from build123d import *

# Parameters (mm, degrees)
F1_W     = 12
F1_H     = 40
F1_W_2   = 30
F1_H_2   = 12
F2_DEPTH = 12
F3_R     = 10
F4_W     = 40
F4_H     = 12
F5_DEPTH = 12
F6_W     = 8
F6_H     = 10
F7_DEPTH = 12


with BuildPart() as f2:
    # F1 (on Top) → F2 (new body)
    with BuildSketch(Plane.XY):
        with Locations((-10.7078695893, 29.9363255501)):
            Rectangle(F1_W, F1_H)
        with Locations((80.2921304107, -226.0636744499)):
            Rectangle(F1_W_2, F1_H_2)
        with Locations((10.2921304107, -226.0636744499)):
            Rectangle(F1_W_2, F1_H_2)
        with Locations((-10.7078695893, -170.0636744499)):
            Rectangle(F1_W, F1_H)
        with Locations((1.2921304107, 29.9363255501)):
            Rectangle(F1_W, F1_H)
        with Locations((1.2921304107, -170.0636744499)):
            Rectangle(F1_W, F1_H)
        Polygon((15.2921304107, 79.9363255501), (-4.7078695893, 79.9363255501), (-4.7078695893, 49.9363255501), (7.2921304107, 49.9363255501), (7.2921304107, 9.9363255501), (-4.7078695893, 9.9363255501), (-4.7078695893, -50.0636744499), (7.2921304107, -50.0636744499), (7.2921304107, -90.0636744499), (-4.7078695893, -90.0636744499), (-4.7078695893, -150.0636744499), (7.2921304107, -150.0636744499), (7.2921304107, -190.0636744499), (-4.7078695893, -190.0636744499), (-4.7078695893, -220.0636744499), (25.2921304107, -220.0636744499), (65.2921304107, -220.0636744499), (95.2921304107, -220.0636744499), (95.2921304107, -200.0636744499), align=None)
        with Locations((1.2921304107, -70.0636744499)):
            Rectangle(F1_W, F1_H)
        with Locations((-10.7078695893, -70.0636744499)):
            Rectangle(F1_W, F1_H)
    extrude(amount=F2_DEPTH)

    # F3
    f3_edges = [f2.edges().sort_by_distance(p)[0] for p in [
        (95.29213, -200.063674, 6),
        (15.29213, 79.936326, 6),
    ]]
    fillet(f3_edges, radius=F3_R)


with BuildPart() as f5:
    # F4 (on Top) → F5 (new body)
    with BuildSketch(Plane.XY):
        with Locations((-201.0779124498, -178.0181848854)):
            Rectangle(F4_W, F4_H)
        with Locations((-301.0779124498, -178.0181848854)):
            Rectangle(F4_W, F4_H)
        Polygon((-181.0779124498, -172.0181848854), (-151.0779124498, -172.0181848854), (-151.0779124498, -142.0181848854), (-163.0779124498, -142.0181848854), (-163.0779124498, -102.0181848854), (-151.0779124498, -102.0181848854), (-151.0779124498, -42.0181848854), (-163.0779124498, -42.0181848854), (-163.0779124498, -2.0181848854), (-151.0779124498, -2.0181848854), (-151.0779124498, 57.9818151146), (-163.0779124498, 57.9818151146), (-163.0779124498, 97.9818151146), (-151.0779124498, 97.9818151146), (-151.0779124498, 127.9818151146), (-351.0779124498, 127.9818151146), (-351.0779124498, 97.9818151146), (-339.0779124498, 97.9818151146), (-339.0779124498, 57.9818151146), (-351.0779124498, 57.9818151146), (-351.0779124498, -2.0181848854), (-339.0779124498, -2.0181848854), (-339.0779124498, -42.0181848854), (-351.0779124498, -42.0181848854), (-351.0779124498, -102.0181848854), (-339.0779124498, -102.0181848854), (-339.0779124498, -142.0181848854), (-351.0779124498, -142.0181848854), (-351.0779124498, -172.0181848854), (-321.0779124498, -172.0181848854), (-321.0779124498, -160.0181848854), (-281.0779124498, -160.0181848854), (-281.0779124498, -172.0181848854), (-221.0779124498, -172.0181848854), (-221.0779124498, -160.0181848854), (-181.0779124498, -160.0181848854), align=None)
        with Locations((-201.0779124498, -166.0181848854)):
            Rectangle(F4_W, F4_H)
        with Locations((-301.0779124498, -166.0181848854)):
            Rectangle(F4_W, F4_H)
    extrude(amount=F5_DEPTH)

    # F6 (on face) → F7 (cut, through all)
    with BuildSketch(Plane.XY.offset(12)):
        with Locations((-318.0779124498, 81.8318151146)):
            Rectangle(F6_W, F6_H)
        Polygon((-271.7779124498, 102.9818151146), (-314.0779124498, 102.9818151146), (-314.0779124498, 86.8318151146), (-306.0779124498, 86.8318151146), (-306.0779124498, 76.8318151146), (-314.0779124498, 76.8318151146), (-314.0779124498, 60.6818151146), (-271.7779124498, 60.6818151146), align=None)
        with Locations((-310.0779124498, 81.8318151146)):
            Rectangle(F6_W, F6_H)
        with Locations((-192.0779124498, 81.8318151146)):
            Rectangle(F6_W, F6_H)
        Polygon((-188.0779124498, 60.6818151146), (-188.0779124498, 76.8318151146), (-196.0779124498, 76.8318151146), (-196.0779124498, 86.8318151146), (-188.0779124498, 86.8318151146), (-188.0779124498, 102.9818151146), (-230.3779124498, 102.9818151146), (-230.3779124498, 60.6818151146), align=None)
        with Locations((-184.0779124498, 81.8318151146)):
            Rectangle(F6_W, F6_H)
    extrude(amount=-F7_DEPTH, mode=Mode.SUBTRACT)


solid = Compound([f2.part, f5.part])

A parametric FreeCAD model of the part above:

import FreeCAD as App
import Part
import Sketcher
from FreeCAD import Vector
Q = App.Units.Quantity


def edges_at(feature, points):
    """Names of the edges that pass closest to the given points."""
    edges = feature.Shape.Edges
    near = lambda p: min(range(len(edges)), key=lambda i: edges[i].distToShape(Part.Vertex(*p))[0])
    return sorted({f"Edge{near(p) + 1}" for p in points})


def add_polygon(sketch, points):
    """Adds a closed chain of lines whose ends are joined by coincident constraints."""
    first, n = sketch.GeometryCount, len(points)
    for a, b in zip(points, points[1:] + points[:1]):
        sketch.addGeometry(Part.LineSegment(App.Vector(*a, 0), App.Vector(*b, 0)), False)
    for i in range(n):
        sketch.addConstraint(Sketcher.Constraint("Coincident", first + i, 2, first + (i + 1) % n, 1))

doc = App.newDocument("Part")
params = doc.addObject("Spreadsheet::Sheet", "Params")
for row, (alias, value) in enumerate([
    ("sketch1_width", "12 mm"),
    ("sketch1_width2", "30 mm"),
    ("sketch1_width3", "40 mm"),
    ("sketch1_width4", "20 mm"),
    ("sketch1_height", "60 mm"),
    ("pad1_length", "12 mm"),
    ("fillet_radius", "10 mm"),
    ("sketch2_width", "40 mm"),
    ("sketch2_width2", "30 mm"),
    ("sketch2_width3", "12 mm"),
    ("sketch2_width4", "200 mm"),
    ("pad2_length", "12 mm"),
    ("sketch3_width", "8 mm"),
    ("sketch3_height", "10 mm"),
    ("sketch3_width2", "42.3 mm"),
], start=1):
    params.set(f"A{row}", alias)
    params.set(f"B{row}", "=" + value)
    params.setAlias(f"B{row}", alias)

body = doc.addObject("PartDesign::Body", "Body")

# Sketch on XY plane
sketch1 = body.newObject("Sketcher::SketchObject", "Sketch")
sketch1.AttachmentSupport = (doc.getObject("XY_Plane"), [""])
sketch1.MapMode = "FlatFace"
add_polygon(sketch1, [(-17, 50), (-17, 10), (-5, 10), (-5, -50), (-17, -50), (-17, -90), (-5, -90), (-5, -150), (-17, -150), (-17, -190), (-5, -190), (-5, -232), (25, -232), (25, -220), (65, -220), (65, -232), (95, -232), (95, -200), (15, 80), (-5, 80), (-5, 50)])  # lines 0-20
sketch1.addConstraint([
    Sketcher.Constraint("Vertical", 0),
    Sketcher.Constraint("Horizontal", 1),
    Sketcher.Constraint("Vertical", 2),
    Sketcher.Constraint("Horizontal", 3),
    Sketcher.Constraint("Vertical", 4),
    Sketcher.Constraint("Horizontal", 5),
    Sketcher.Constraint("Vertical", 6),
    Sketcher.Constraint("Horizontal", 7),
    Sketcher.Constraint("Vertical", 8),
    Sketcher.Constraint("Horizontal", 9),
    Sketcher.Constraint("Vertical", 10),
    Sketcher.Constraint("Horizontal", 11),
    Sketcher.Constraint("Vertical", 12),
    Sketcher.Constraint("Horizontal", 13),
    Sketcher.Constraint("Vertical", 14),
    Sketcher.Constraint("Horizontal", 15),
    Sketcher.Constraint("Vertical", 16),
    Sketcher.Constraint("Horizontal", 18),
    Sketcher.Constraint("Vertical", 19),
    Sketcher.Constraint("Horizontal", 20),
    Sketcher.Constraint("Horizontal", 11, 2, 14, 2),
    Sketcher.Constraint("Vertical", 0, 2, 3, 2),
    Sketcher.Constraint("Vertical", 2, 2, 5, 2),
    Sketcher.Constraint("Vertical", 4, 2, 7, 2),
    Sketcher.Constraint("Vertical", 6, 2, 9, 2),
    Sketcher.Constraint("Vertical", 10, 2, 18, 2),
    Sketcher.Constraint("Equal", 11, 15),
    Sketcher.Constraint("Equal", 13, 0),
    Sketcher.Constraint("Equal", 0, 4),
    Sketcher.Constraint("Equal", 2, 6),
    Sketcher.Constraint("Equal", 4, 8),
    Sketcher.Constraint("Equal", 20, 12),
    Sketcher.Constraint("Equal", 15, 19),
    Sketcher.Constraint("DistanceX", 1, 1, 1, 2, Q("12 mm")),
    Sketcher.Constraint("DistanceX", 11, 1, 11, 2, Q("30 mm")),
    Sketcher.Constraint("DistanceX", 13, 1, 13, 2, Q("40 mm")),
    Sketcher.Constraint("DistanceX", 18, 2, 18, 1, Q("20 mm")),
    Sketcher.Constraint("DistanceY", 2, 2, 2, 1, Q("60 mm")),
    Sketcher.Constraint("DistanceY", 10, 2, 10, 1, Q("42 mm")),
    Sketcher.Constraint("DistanceY", 16, 1, 16, 2, Q("32 mm")),
    Sketcher.Constraint("DistanceX", 0, 2, -1, 1, Q("16.70787 mm")),
    Sketcher.Constraint("DistanceY", -1, 1, 0, 2, Q("9.936326 mm")),
])
sketch1.setExpression("Constraints[54]", "Params.sketch1_width")
sketch1.setExpression("Constraints[55]", "Params.sketch1_width2")
sketch1.setExpression("Constraints[56]", "Params.sketch1_width3")
sketch1.setExpression("Constraints[57]", "Params.sketch1_width4")
sketch1.setExpression("Constraints[58]", "Params.sketch1_height")
pad1 = body.newObject("PartDesign::Pad", "Pad")
pad1.Profile = sketch1
pad1.setExpression("Length", "Params.pad1_length")
doc.recompute()

fillet = body.newObject("PartDesign::Fillet", "Fillet")
fillet.Base = (pad1, edges_at(pad1, [(95.292, -200.064, 6), (15.292, 79.936, 6)]))
fillet.setExpression("Radius", "Params.fillet_radius")
body2 = doc.addObject("PartDesign::Body", "Body001")

# Sketch on XY plane
sketch2 = body2.newObject("Sketcher::SketchObject", "Sketch001")
sketch2.AttachmentSupport = (doc.getObject("XY_Plane001"), [""])
sketch2.MapMode = "FlatFace"
add_polygon(sketch2, [(-221, -172), (-221, -184), (-181, -184), (-181, -172), (-151, -172), (-151, -142), (-163, -142), (-163, -102), (-151, -102), (-151, -42), (-163, -42), (-163, -2), (-151, -2), (-151, 58), (-163, 58), (-163, 98), (-151, 98), (-151, 128), (-351, 128), (-351, 98), (-339, 98), (-339, 58), (-351, 58), (-351, -2), (-339, -2), (-339, -42), (-351, -42), (-351, -102), (-339, -102), (-339, -142), (-351, -142), (-351, -172), (-321, -172), (-321, -184), (-281, -184), (-281, -172)])  # lines 0-35
sketch2.addConstraint([
    Sketcher.Constraint("Vertical", 0),
    Sketcher.Constraint("Horizontal", 1),
    Sketcher.Constraint("Vertical", 2),
    Sketcher.Constraint("Horizontal", 3),
    Sketcher.Constraint("Vertical", 4),
    Sketcher.Constraint("Horizontal", 5),
    Sketcher.Constraint("Vertical", 6),
    Sketcher.Constraint("Horizontal", 7),
    Sketcher.Constraint("Vertical", 8),
    Sketcher.Constraint("Horizontal", 9),
    Sketcher.Constraint("Vertical", 10),
    Sketcher.Constraint("Horizontal", 11),
    Sketcher.Constraint("Vertical", 12),
    Sketcher.Constraint("Horizontal", 13),
    Sketcher.Constraint("Vertical", 14),
    Sketcher.Constraint("Horizontal", 15),
    Sketcher.Constraint("Vertical", 16),
    Sketcher.Constraint("Horizontal", 17),
    Sketcher.Constraint("Vertical", 18),
    Sketcher.Constraint("Horizontal", 19),
    Sketcher.Constraint("Vertical", 20),
    Sketcher.Constraint("Horizontal", 21),
    Sketcher.Constraint("Vertical", 22),
    Sketcher.Constraint("Horizontal", 23),
    Sketcher.Constraint("Vertical", 24),
    Sketcher.Constraint("Horizontal", 25),
    Sketcher.Constraint("Vertical", 26),
    Sketcher.Constraint("Horizontal", 27),
    Sketcher.Constraint("Vertical", 28),
    Sketcher.Constraint("Horizontal", 29),
    Sketcher.Constraint("Vertical", 30),
    Sketcher.Constraint("Horizontal", 31),
    Sketcher.Constraint("Vertical", 32),
    Sketcher.Constraint("Horizontal", 33),
    Sketcher.Constraint("Vertical", 34),
    Sketcher.Constraint("Horizontal", 35),
    Sketcher.Constraint("Horizontal", 15, 2, 18, 2),
    Sketcher.Constraint("Horizontal", 13, 2, 20, 2),
    Sketcher.Constraint("Horizontal", 11, 2, 22, 2),
    Sketcher.Constraint("Horizontal", 9, 2, 24, 2),
    Sketcher.Constraint("Horizontal", 7, 2, 26, 2),
    Sketcher.Constraint("Horizontal", 5, 2, 28, 2),
    Sketcher.Constraint("Horizontal", 3, 2, 30, 2),
    Sketcher.Constraint("Horizontal", 1, 2, 32, 2),
    Sketcher.Constraint("Horizontal", 31, 2, 34, 2),
    Sketcher.Constraint("Vertical", 4, 2, 7, 2),
    Sketcher.Constraint("Vertical", 6, 2, 9, 2),
    Sketcher.Constraint("Vertical", 8, 2, 11, 2),
    Sketcher.Constraint("Vertical", 10, 2, 13, 2),
    Sketcher.Constraint("Vertical", 12, 2, 15, 2),
    Sketcher.Constraint("Vertical", 18, 2, 21, 2),
    Sketcher.Constraint("Vertical", 20, 2, 23, 2),
    Sketcher.Constraint("Vertical", 22, 2, 25, 2),
    Sketcher.Constraint("Vertical", 24, 2, 27, 2),
    Sketcher.Constraint("Vertical", 26, 2, 29, 2),
    Sketcher.Constraint("Equal", 15, 19),
    Sketcher.Constraint("Equal", 3, 31),
    Sketcher.Constraint("Equal", 1, 33),
    Sketcher.Constraint("Equal", 29, 0),
    Sketcher.Constraint("Equal", 31, 4),
    Sketcher.Constraint("Equal", 33, 6),
    Sketcher.Constraint("Equal", 35, 8),
    Sketcher.Constraint("Equal", 6, 10),
    Sketcher.Constraint("Equal", 8, 12),
    Sketcher.Constraint("Equal", 10, 14),
    Sketcher.Constraint("Equal", 4, 16),
    Sketcher.Constraint("DistanceX", 1, 1, 1, 2, Q("40 mm")),
    Sketcher.Constraint("DistanceX", 3, 1, 3, 2, Q("30 mm")),
    Sketcher.Constraint("DistanceX", 5, 2, 5, 1, Q("12 mm")),
    Sketcher.Constraint("DistanceX", 17, 2, 17, 1, Q("200 mm")),
    Sketcher.Constraint("DistanceX", 0, 2, -1, 1, Q("221.077912 mm")),
    Sketcher.Constraint("DistanceY", 0, 2, -1, 1, Q("184.018185 mm")),
])
sketch2.setExpression("Constraints[102]", "Params.sketch2_width")
sketch2.setExpression("Constraints[103]", "Params.sketch2_width2")
sketch2.setExpression("Constraints[104]", "Params.sketch2_width3")
sketch2.setExpression("Constraints[105]", "Params.sketch2_width4")
pad2 = body2.newObject("PartDesign::Pad", "Pad001")
pad2.Profile = sketch2
pad2.setExpression("Length", "Params.pad2_length")

# Sketch on XY plane
sketch3 = body2.newObject("Sketcher::SketchObject", "Sketch002")
sketch3.AttachmentSupport = (doc.getObject("XY_Plane001"), [""])
sketch3.MapMode = "FlatFace"
sketch3.AttachmentOffset = App.Placement(Vector(0, 0, 12), App.Rotation())
add_polygon(sketch3, [(-322, 87), (-322, 77), (-314, 77), (-314, 61), (-272, 61), (-272, 103), (-314, 103), (-314, 87)])  # lines 0-7
add_polygon(sketch3, [(-188, 103), (-230, 103), (-230, 61), (-188, 61), (-188, 77), (-180, 77), (-180, 87), (-188, 87)])  # lines 8-15
sketch3.addConstraint([
    Sketcher.Constraint("Vertical", 0),
    Sketcher.Constraint("Horizontal", 1),
    Sketcher.Constraint("Vertical", 2),
    Sketcher.Constraint("Horizontal", 3),
    Sketcher.Constraint("Vertical", 4),
    Sketcher.Constraint("Horizontal", 5),
    Sketcher.Constraint("Vertical", 6),
    Sketcher.Constraint("Horizontal", 7),
    Sketcher.Constraint("Horizontal", 8),
    Sketcher.Constraint("Vertical", 9),
    Sketcher.Constraint("Horizontal", 10),
    Sketcher.Constraint("Vertical", 11),
    Sketcher.Constraint("Horizontal", 12),
    Sketcher.Constraint("Vertical", 13),
    Sketcher.Constraint("Horizontal", 14),
    Sketcher.Constraint("Vertical", 15),
    Sketcher.Constraint("Horizontal", 5, 2, 8, 2),
    Sketcher.Constraint("Horizontal", 3, 2, 9, 2),
    Sketcher.Constraint("Horizontal", 1, 2, 11, 2),
    Sketcher.Constraint("Horizontal", 7, 2, 13, 2),
    Sketcher.Constraint("Vertical", 2, 2, 5, 2),
    Sketcher.Constraint("Vertical", 11, 2, 14, 2),
    Sketcher.Constraint("Equal", 5, 8),
    Sketcher.Constraint("Equal", 7, 12),
    Sketcher.Constraint("Equal", 10, 4),
    Sketcher.Constraint("Equal", 2, 6),
    Sketcher.Constraint("DistanceX", 1, 1, 1, 2, Q("8 mm")),
    Sketcher.Constraint("DistanceY", 0, 2, 0, 1, Q("10 mm")),
    Sketcher.Constraint("DistanceX", 3, 1, 3, 2, Q("42.3 mm")),
    Sketcher.Constraint("DistanceX", 2, 2, 10, 2, Q("126 mm")),
    Sketcher.Constraint("DistanceX", 0, 2, -1, 1, Q("322.077912 mm")),
    Sketcher.Constraint("DistanceY", -1, 1, 0, 2, Q("76.831815 mm")),
])
sketch3.setExpression("Constraints[42]", "Params.sketch3_width")
sketch3.setExpression("Constraints[43]", "Params.sketch3_height")
sketch3.setExpression("Constraints[44]", "Params.sketch3_width2")
pocket1 = body2.newObject("PartDesign::Pocket", "Pocket")
pocket1.Profile = sketch3
pocket1.Type = "ThroughAll"

doc.recompute()
